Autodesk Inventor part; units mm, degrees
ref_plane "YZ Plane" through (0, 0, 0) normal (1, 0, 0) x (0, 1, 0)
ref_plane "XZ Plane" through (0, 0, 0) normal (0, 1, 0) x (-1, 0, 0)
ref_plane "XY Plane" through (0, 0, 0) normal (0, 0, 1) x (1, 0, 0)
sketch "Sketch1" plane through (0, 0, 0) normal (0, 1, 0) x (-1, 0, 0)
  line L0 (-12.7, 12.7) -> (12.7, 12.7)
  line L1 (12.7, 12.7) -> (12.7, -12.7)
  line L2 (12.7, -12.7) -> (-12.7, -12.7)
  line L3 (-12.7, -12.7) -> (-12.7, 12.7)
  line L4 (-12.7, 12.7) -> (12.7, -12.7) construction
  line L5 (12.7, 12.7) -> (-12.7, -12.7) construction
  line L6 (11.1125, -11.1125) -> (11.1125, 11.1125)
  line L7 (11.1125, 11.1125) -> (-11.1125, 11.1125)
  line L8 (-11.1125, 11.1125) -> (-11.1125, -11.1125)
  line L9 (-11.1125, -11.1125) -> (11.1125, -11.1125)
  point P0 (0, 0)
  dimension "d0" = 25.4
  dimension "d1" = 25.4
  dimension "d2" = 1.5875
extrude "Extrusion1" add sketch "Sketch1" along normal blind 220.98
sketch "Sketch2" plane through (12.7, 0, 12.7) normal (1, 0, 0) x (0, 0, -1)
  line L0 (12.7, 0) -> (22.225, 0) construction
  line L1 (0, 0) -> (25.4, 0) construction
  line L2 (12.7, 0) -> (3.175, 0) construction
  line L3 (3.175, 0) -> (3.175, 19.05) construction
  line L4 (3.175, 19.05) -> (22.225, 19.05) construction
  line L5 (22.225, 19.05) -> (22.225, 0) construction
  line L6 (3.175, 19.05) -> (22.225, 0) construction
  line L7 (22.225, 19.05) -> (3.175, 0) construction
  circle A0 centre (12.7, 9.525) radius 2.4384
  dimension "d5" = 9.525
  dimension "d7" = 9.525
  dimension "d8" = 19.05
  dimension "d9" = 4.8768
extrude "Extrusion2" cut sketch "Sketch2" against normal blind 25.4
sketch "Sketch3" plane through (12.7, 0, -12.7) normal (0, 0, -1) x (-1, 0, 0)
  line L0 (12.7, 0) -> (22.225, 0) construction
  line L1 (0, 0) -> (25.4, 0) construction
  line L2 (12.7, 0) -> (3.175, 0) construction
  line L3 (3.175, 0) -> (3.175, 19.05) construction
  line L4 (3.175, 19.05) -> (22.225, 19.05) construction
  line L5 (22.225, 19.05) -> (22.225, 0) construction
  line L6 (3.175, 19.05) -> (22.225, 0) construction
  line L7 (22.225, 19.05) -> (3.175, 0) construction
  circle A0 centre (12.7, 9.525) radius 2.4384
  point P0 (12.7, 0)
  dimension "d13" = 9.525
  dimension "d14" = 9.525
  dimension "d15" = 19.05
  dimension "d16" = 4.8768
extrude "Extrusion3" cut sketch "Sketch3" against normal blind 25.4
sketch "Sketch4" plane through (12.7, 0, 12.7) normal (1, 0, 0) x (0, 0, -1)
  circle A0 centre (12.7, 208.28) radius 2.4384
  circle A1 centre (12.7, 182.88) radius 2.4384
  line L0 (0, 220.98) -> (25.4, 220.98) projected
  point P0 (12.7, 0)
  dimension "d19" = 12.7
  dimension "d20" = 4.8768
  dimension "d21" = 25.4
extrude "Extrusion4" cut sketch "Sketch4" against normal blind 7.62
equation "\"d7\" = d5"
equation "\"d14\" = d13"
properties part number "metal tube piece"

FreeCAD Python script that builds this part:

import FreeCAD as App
import Part
import Sketcher
from FreeCAD import Vector
Q = App.Units.Quantity

doc = App.newDocument("Part")
body = doc.addObject("PartDesign::Body", "Body")

sketch1 = body.newObject("Sketcher::SketchObject", "Sketch")
sketch1.AttachmentSupport = (doc.getObject("XZ_Plane"), [""])
sketch1.MapMode = "FlatFace"
sketch1.addGeometry([
    Part.LineSegment(Vector(-12.7, 12.7, 0), Vector(12.7, 12.7, 0)),
    Part.LineSegment(Vector(12.7, 12.7, 0), Vector(12.7, -12.7, 0)),
    Part.LineSegment(Vector(12.7, -12.7, 0), Vector(-12.7, -12.7, 0)),
    Part.LineSegment(Vector(-12.7, -12.7, 0), Vector(-12.7, 12.7, 0)),
    Part.LineSegment(Vector(-11.1125, 11.1125, 0), Vector(-11.1125, -11.1125, 0)),
    Part.LineSegment(Vector(-11.1125, -11.1125, 0), Vector(11.1125, -11.1125, 0)),
    Part.LineSegment(Vector(11.1125, -11.1125, 0), Vector(11.1125, 11.1125, 0)),
    Part.LineSegment(Vector(11.1125, 11.1125, 0), Vector(-11.1125, 11.1125, 0)),
], False)
sketch1.addConstraint([
    Sketcher.Constraint("Coincident", 0, 2, 1, 1),
    Sketcher.Constraint("Coincident", 1, 2, 2, 1),
    Sketcher.Constraint("Coincident", 2, 2, 3, 1),
    Sketcher.Constraint("Coincident", 3, 2, 0, 1),
    Sketcher.Constraint("Coincident", 4, 2, 5, 1),
    Sketcher.Constraint("Coincident", 5, 2, 6, 1),
    Sketcher.Constraint("Coincident", 6, 2, 7, 1),
    Sketcher.Constraint("Coincident", 7, 2, 4, 1),
    Sketcher.Constraint("Horizontal", 0),
    Sketcher.Constraint("Vertical", 1),
    Sketcher.Constraint("Horizontal", 2),
    Sketcher.Constraint("Vertical", 3),
    Sketcher.Constraint("Vertical", 4),
    Sketcher.Constraint("Horizontal", 5),
    Sketcher.Constraint("Vertical", 6),
    Sketcher.Constraint("Horizontal", 7),
    Sketcher.Constraint("Symmetric", 0, 2, 2, 2, -1, 1),
    Sketcher.Constraint("Symmetric", 4, 2, 6, 2, -1, 1),
    Sketcher.Constraint("Equal", 2, 1),
    Sketcher.Constraint("Equal", 7, 4),
    Sketcher.Constraint("DistanceX", 0, 1, 0, 2, Q("1 in")),
    Sketcher.Constraint("DistanceX", 2, 2, 4, 2, Q("0.0625 in")),
])
pad1 = body.newObject("PartDesign::Pad", "Pad")
pad1.Profile = sketch1
pad1.Length = Q("8.7 in")
pad1.Reversed = True

sketch2 = body.newObject("Sketcher::SketchObject", "Sketch001")
sketch2.AttachmentSupport = (doc.getObject("YZ_Plane"), [""])
sketch2.MapMode = "FlatFace"
sketch2.AttachmentOffset = App.Placement(Vector(0, 0, 0.5 * 25.4), App.Rotation())
sketch2.addGeometry(Part.Circle(Vector(9.525, 0, 0), Vector(0, 0, 1), 2.4384), False)
sketch2.addConstraint([
    Sketcher.Constraint("PointOnObject", 0, 3, -1),
    Sketcher.Constraint("Diameter", 0, Q("0.192 in")),
    Sketcher.Constraint("DistanceX", -1, 1, 0, 3, Q("0.375 in")),
])
pocket1 = body.newObject("PartDesign::Pocket", "Pocket")
pocket1.Profile = sketch2
pocket1.Length = Q("1 in")

sketch3 = body.newObject("Sketcher::SketchObject", "Sketch002")
sketch3.AttachmentSupport = (doc.getObject("XY_Plane"), [""])
sketch3.MapMode = "FlatFace"
sketch3.AttachmentOffset = App.Placement(Vector(0, 0, -0.5 * 25.4), App.Rotation())
sketch3.addGeometry(Part.Circle(Vector(0, 9.525, 0), Vector(0, 0, 1), 2.4384), False)
sketch3.addConstraint([
    Sketcher.Constraint("PointOnObject", 0, 3, -2),
    Sketcher.Constraint("Diameter", 0, Q("0.192 in")),
    Sketcher.Constraint("DistanceY", -1, 1, 0, 3, Q("0.375 in")),
])
pocket2 = body.newObject("PartDesign::Pocket", "Pocket001")
pocket2.Profile = sketch3
pocket2.Length = Q("1 in")
pocket2.Reversed = True

sketch4 = body.newObject("Sketcher::SketchObject", "Sketch003")
sketch4.AttachmentSupport = (doc.getObject("YZ_Plane"), [""])
sketch4.MapMode = "FlatFace"
sketch4.AttachmentOffset = App.Placement(Vector(0, 0, 0.5 * 25.4), App.Rotation())
sketch4.addGeometry([
    Part.Circle(Vector(208.28, 0, 0), Vector(0, 0, 1), 2.4384),
    Part.Circle(Vector(182.88, 0, 0), Vector(0, 0, 1), 2.4384),
], False)
sketch4.addConstraint([
    Sketcher.Constraint("Equal", 0, 1),
    Sketcher.Constraint("PointOnObject", 0, 3, -1),
    Sketcher.Constraint("PointOnObject", 1, 3, -1),
    Sketcher.Constraint("Diameter", 0, Q("0.192 in")),
    Sketcher.Constraint("DistanceX", 1, 3, 0, 3, Q("1 in")),
    Sketcher.Constraint("DistanceX", -1, 1, 0, 3, Q("8.2 in")),
])
pocket3 = body.newObject("PartDesign::Pocket", "Pocket002")
pocket3.Profile = sketch4
pocket3.Length = Q("0.3 in")

doc.recompute()
